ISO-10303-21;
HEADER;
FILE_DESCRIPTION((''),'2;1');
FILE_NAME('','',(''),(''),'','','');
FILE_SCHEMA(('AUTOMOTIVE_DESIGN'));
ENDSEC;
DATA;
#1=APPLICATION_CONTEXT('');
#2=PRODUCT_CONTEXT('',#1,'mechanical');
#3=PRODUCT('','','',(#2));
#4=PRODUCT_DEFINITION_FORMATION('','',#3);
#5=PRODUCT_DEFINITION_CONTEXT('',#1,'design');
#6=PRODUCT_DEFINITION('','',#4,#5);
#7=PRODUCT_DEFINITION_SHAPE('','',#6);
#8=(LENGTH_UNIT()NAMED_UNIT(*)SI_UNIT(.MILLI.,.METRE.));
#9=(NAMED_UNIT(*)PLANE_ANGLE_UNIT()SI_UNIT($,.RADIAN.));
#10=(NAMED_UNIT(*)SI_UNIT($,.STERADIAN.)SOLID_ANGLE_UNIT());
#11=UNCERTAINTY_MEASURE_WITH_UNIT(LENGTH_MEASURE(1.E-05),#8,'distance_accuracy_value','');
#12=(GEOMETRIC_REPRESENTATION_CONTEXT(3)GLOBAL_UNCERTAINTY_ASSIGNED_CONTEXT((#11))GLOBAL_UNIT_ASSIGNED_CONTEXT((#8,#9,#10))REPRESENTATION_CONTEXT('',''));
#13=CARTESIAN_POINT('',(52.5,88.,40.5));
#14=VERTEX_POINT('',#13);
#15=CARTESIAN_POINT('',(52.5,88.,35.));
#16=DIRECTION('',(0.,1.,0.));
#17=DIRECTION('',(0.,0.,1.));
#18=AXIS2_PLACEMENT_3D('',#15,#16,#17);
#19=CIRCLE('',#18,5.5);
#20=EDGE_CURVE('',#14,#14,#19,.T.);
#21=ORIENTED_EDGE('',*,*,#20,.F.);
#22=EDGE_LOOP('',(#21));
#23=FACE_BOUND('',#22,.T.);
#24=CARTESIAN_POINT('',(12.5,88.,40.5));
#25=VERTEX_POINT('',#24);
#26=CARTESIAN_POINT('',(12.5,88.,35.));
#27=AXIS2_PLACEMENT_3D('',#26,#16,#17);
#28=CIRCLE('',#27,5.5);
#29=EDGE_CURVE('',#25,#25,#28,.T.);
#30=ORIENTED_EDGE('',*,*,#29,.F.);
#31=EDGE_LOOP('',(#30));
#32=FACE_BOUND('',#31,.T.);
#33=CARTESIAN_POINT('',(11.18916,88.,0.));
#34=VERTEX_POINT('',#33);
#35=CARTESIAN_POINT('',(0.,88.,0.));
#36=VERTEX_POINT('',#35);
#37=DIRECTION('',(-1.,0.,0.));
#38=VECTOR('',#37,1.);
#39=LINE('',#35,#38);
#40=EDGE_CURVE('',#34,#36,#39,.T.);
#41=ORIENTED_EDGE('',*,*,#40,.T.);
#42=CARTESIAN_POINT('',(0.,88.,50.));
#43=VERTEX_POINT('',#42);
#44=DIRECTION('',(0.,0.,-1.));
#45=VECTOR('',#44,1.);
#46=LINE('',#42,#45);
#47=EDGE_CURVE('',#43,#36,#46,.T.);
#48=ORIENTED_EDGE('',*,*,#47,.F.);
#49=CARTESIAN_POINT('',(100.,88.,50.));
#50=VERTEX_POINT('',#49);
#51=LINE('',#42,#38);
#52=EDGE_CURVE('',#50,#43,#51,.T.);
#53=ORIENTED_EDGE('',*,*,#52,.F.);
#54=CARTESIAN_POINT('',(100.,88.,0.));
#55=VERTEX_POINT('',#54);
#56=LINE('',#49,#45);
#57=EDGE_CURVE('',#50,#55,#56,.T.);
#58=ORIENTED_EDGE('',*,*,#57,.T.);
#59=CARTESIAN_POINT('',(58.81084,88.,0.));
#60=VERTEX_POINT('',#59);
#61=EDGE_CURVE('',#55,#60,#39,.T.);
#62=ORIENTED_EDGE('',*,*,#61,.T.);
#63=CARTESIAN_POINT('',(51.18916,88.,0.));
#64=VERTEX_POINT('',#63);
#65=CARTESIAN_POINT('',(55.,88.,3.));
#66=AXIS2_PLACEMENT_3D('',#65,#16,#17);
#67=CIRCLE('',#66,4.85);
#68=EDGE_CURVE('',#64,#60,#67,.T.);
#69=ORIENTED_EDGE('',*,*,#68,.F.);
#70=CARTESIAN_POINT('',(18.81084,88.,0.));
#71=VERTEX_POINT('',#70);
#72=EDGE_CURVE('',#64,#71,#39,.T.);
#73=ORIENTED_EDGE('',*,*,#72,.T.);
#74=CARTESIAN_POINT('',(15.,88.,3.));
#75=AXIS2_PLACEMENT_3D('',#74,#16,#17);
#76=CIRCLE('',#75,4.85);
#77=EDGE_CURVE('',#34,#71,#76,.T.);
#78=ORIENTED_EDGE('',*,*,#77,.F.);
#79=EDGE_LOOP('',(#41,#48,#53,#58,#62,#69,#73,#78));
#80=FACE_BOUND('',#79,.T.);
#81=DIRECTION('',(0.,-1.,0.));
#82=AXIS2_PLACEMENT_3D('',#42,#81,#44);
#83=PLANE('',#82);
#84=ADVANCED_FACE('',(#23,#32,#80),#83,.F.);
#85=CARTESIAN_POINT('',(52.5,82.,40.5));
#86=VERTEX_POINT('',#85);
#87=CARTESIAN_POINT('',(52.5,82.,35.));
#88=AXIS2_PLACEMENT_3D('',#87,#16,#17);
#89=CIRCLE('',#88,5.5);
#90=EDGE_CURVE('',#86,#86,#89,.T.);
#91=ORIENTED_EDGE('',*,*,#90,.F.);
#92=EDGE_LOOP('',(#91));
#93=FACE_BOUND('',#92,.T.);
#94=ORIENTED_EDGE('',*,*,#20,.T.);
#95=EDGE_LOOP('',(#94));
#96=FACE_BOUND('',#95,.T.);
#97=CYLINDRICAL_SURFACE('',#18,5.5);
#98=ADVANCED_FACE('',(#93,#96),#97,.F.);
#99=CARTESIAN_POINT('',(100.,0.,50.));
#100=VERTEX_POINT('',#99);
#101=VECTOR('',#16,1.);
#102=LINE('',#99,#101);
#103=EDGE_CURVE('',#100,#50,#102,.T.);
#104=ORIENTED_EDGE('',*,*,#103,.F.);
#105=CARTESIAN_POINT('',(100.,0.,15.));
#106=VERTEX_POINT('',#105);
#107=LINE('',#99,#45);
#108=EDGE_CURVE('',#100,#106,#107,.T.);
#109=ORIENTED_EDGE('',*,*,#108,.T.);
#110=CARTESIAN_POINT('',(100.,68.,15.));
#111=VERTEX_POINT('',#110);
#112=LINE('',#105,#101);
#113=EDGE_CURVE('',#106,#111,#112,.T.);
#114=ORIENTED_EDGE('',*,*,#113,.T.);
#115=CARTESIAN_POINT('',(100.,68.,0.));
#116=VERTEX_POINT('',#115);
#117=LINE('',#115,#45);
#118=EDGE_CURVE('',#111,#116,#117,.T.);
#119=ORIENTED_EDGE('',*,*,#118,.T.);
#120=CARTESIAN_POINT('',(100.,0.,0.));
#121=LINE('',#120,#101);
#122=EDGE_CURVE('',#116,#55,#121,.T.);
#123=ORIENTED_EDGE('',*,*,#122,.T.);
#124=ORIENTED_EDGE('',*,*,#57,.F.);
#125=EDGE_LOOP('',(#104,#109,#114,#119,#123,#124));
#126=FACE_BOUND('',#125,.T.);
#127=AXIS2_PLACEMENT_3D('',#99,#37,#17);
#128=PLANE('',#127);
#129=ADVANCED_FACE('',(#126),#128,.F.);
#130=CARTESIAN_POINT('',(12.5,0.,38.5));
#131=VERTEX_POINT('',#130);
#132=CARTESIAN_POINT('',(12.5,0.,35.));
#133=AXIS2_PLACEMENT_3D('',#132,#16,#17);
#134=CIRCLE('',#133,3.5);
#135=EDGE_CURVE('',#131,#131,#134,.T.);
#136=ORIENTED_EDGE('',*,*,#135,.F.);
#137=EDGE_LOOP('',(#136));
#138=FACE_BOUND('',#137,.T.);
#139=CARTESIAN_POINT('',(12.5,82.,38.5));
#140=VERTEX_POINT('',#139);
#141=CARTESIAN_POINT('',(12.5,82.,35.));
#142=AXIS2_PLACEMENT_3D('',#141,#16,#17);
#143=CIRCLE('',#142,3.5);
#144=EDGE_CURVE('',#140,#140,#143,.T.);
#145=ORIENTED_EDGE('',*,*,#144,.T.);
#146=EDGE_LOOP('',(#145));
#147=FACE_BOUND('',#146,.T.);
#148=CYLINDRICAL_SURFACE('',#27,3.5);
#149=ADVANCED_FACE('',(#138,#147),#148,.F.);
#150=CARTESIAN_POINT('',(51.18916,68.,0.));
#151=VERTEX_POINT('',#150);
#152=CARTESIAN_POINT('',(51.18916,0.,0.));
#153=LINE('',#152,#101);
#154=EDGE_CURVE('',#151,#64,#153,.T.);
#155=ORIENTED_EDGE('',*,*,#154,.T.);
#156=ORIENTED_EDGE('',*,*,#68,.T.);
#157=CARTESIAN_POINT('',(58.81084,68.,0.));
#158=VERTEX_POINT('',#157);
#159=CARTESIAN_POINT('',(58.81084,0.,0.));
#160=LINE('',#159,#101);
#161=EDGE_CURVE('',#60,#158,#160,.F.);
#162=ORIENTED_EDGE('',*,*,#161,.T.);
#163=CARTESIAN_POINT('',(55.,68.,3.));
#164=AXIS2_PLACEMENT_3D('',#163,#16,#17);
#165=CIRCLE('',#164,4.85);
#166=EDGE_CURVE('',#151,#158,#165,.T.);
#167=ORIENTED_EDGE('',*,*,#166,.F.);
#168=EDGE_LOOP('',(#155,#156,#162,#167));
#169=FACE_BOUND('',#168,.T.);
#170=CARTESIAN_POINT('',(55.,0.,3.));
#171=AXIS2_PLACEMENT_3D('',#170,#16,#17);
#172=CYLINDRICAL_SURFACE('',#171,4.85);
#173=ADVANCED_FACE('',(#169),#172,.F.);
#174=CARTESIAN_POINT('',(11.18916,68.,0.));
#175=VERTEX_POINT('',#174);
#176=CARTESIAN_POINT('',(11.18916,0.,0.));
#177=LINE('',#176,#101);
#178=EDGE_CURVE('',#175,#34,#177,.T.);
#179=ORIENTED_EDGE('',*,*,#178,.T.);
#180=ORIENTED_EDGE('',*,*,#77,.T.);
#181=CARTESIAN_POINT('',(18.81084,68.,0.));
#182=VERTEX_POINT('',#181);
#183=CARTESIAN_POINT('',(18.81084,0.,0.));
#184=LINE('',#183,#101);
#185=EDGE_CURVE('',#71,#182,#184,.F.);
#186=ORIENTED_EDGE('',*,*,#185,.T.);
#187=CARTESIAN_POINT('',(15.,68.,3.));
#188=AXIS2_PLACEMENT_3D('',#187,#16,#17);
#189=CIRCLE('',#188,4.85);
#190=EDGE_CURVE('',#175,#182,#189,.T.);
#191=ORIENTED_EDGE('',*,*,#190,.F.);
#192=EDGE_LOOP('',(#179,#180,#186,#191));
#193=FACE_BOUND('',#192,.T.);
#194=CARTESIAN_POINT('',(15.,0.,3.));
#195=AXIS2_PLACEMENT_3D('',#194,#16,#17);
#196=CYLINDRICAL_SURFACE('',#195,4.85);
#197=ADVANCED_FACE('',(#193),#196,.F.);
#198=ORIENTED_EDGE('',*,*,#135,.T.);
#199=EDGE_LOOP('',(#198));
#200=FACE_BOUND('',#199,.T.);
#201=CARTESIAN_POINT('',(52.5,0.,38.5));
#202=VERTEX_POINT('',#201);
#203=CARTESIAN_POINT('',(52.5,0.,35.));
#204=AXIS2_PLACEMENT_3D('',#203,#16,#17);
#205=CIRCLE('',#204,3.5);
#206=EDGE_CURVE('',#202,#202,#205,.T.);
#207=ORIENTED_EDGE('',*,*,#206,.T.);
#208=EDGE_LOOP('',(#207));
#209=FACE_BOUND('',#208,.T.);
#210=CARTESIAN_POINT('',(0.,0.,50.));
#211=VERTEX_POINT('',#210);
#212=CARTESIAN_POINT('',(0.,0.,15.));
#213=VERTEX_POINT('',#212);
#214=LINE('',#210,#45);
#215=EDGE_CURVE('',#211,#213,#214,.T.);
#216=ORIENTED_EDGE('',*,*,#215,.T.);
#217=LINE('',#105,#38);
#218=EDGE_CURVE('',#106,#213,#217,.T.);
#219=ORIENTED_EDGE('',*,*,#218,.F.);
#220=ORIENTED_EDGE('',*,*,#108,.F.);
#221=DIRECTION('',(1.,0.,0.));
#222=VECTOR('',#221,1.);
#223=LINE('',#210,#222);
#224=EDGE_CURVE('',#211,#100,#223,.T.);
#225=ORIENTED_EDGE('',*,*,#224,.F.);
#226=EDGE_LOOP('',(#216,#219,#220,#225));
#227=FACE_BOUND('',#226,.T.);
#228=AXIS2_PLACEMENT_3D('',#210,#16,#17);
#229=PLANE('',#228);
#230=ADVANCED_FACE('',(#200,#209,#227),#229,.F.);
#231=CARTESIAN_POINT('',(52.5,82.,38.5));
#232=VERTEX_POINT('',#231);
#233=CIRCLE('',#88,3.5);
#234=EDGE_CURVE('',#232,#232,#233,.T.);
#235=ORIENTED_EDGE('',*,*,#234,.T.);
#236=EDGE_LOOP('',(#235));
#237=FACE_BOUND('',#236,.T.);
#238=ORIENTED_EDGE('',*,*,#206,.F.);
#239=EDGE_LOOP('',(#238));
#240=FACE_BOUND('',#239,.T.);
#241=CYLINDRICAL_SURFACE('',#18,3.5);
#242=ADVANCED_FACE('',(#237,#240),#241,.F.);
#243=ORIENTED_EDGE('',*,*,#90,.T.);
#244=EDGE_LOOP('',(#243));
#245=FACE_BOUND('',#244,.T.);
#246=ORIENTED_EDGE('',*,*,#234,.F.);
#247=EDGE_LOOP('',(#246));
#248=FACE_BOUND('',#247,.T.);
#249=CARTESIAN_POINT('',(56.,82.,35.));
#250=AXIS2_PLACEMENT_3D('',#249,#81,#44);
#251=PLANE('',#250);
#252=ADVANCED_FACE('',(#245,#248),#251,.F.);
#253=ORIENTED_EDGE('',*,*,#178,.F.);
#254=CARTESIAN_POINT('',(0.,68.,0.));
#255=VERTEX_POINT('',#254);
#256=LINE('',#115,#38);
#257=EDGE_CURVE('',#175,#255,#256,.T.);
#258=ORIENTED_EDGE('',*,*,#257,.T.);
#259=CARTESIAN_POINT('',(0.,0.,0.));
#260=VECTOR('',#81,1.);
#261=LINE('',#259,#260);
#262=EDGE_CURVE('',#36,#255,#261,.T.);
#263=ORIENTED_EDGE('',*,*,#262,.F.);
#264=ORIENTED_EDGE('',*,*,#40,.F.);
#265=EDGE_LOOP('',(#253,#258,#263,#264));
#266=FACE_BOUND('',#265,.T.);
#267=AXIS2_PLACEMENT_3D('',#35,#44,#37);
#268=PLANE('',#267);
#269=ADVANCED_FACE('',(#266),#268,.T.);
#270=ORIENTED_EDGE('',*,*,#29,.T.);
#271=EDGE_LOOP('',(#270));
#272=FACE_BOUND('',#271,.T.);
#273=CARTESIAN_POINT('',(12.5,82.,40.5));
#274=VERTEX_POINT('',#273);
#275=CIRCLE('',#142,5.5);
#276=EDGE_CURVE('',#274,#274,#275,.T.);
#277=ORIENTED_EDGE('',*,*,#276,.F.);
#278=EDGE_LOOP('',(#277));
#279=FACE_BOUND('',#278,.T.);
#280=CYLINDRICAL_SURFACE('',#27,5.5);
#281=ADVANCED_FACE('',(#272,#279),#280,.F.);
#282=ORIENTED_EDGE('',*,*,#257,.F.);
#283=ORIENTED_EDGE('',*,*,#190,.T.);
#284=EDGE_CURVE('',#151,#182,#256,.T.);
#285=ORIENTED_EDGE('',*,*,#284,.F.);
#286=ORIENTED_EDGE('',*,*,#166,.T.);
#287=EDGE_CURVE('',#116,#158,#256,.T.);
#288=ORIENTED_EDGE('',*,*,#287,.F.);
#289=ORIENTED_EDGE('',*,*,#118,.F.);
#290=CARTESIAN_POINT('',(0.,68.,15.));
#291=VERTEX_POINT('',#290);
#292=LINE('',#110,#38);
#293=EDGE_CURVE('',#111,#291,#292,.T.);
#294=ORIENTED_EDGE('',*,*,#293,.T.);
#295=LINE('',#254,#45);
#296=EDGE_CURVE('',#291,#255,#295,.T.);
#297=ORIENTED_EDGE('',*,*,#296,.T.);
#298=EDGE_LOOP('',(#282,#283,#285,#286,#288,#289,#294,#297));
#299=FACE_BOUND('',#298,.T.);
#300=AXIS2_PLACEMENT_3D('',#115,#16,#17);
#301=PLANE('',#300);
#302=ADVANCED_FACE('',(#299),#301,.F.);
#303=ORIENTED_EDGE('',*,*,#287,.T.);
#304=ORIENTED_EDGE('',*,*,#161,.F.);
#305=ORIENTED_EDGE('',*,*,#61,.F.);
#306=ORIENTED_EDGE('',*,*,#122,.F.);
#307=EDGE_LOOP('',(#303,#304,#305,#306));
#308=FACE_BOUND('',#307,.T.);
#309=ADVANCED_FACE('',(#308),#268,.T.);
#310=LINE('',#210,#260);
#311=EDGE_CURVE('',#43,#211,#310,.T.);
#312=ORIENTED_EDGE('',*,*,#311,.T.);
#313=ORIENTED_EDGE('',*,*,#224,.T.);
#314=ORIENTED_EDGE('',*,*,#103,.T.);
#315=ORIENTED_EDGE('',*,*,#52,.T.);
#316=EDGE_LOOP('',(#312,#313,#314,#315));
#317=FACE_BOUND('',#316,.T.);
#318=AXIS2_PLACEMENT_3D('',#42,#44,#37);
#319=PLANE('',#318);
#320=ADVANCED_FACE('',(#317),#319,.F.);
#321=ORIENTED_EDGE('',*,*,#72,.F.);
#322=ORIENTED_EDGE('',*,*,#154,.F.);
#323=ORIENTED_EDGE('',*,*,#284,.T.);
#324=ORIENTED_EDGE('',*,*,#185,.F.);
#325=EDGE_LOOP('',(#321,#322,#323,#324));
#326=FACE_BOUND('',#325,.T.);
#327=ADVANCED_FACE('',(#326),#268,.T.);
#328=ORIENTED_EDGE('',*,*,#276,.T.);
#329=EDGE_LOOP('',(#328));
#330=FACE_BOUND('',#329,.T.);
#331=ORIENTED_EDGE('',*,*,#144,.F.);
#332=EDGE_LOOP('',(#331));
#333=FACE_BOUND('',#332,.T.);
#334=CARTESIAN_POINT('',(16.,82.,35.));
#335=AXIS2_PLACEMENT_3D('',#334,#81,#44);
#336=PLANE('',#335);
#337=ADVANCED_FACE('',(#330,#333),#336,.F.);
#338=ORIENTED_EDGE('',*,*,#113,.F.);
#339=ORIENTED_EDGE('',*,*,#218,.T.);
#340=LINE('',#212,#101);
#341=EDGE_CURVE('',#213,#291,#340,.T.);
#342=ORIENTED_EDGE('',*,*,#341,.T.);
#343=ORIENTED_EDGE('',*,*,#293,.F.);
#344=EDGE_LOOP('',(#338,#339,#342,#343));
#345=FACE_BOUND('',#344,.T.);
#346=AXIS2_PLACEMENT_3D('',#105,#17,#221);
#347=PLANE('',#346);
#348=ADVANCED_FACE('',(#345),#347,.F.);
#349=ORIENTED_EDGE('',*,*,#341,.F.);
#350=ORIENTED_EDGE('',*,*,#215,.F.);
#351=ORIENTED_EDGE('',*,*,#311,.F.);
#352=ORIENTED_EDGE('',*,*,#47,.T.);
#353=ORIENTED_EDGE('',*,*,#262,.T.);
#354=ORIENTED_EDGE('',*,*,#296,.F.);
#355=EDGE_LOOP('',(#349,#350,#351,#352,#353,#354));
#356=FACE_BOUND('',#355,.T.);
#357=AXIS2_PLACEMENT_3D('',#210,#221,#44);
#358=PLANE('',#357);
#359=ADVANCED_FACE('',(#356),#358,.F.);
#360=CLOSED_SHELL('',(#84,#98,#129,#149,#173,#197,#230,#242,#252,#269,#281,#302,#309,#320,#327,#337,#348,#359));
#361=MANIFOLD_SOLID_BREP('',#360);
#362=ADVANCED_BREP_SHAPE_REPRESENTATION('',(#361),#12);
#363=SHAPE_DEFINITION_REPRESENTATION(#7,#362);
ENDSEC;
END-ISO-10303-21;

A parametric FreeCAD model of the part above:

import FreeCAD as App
import Part
import Sketcher
from FreeCAD import Vector
Q = App.Units.Quantity


def add_polygon(sketch, points):
    """Adds a closed chain of lines whose ends are joined by coincident constraints."""
    first, n = sketch.GeometryCount, len(points)
    for a, b in zip(points, points[1:] + points[:1]):
        sketch.addGeometry(Part.LineSegment(App.Vector(*a, 0), App.Vector(*b, 0)), False)
    for i in range(n):
        sketch.addConstraint(Sketcher.Constraint("Coincident", first + i, 2, first + (i + 1) % n, 1))

doc = App.newDocument("Part")
body = doc.addObject("PartDesign::Body", "Body")

# Sketch on XY plane
sketch1 = doc.addObject("Sketcher::SketchObject", "Sketch")
body.addObject(sketch1)
sketch1.AttachmentSupport = (doc.XY_Plane, [""])
sketch1.MapMode = "FlatFace"
add_polygon(sketch1, [(0, 88), (0, 0), (100, 0), (100, 88)])  # lines 0-3
sketch1.addConstraint([
    Sketcher.Constraint("Vertical", 0),
    Sketcher.Constraint("Horizontal", 1),
    Sketcher.Constraint("Vertical", 2),
    Sketcher.Constraint("Horizontal", 3),
    Sketcher.Constraint("Coincident", 0, 2, -1, 1),
    Sketcher.Constraint("DistanceX", 1, 1, 1, 2, Q("100 mm")),
    Sketcher.Constraint("DistanceY", 0, 2, 0, 1, Q("88 mm")),
])
pad1 = doc.addObject("PartDesign::Pad", "Pad")
body.addObject(pad1)
pad1.Profile = sketch1
pad1.Length = 50

# Sketch on YZ plane
sketch2 = doc.addObject("Sketcher::SketchObject", "Sketch001")
body.addObject(sketch2)
sketch2.AttachmentSupport = (doc.YZ_Plane, [""])
sketch2.MapMode = "FlatFace"
add_polygon(sketch2, [(68, 0), (0, 0), (0, 15), (68, 15)])  # lines 0-3
sketch2.addConstraint([
    Sketcher.Constraint("Horizontal", 0),
    Sketcher.Constraint("Vertical", 1),
    Sketcher.Constraint("Horizontal", 2),
    Sketcher.Constraint("Vertical", 3),
    Sketcher.Constraint("Coincident", 0, 2, -1, 1),
    Sketcher.Constraint("DistanceX", 0, 2, 0, 1, Q("68 mm")),
    Sketcher.Constraint("DistanceY", 1, 1, 1, 2, Q("15 mm")),
])
pocket1 = doc.addObject("PartDesign::Pocket", "Pocket")
body.addObject(pocket1)
pocket1.Profile = sketch2
pocket1.Type = "ThroughAll"
pocket1.Reversed = True

# Sketch on XZ plane
sketch3 = doc.addObject("Sketcher::SketchObject", "Sketch002")
body.addObject(sketch3)
sketch3.AttachmentSupport = (doc.XZ_Plane, [""])
sketch3.MapMode = "FlatFace"
sketch3.AttachmentOffset = App.Placement(Vector(0, 0, -88), App.Rotation())
sketch3.addGeometry([
    Part.Circle(Vector(15, 3, 0), Vector(0, 0, 1), 4.8),
    Part.Circle(Vector(55, 3, 0), Vector(0, 0, 1), 4.8),
], False)
sketch3.addConstraint([
    Sketcher.Constraint("Equal", 0, 1),
    Sketcher.Constraint("Horizontal", 0, 3, 1, 3),
    Sketcher.Constraint("Diameter", 0, Q("9.7 mm")),
    Sketcher.Constraint("DistanceX", -1, 1, 0, 3, Q("15 mm")),
    Sketcher.Constraint("DistanceY", -1, 1, 0, 3, Q("3 mm")),
    Sketcher.Constraint("DistanceX", -1, 1, 1, 3, Q("55 mm")),
])
pocket2 = doc.addObject("PartDesign::Pocket", "Pocket001")
body.addObject(pocket2)
pocket2.Profile = sketch3
pocket2.Type = "ThroughAll"
pocket2.Reversed = True

# Sketch on XZ plane
sketch4 = doc.addObject("Sketcher::SketchObject", "Sketch003")
body.addObject(sketch4)
sketch4.AttachmentSupport = (doc.XZ_Plane, [""])
sketch4.MapMode = "FlatFace"
sketch4.AttachmentOffset = App.Placement(Vector(0, 0, -88), App.Rotation())
sketch4.addGeometry([
    Part.Circle(Vector(12.5, 35, 0), Vector(0, 0, 1), 3.5),
    Part.Circle(Vector(52.5, 35, 0), Vector(0, 0, 1), 3.5),
], False)
sketch4.addConstraint([
    Sketcher.Constraint("Equal", 0, 1),
    Sketcher.Constraint("Horizontal", 0, 3, 1, 3),
    Sketcher.Constraint("Diameter", 0, Q("7 mm")),
    Sketcher.Constraint("DistanceY", -1, 1, 0, 3, Q("35 mm")),
    Sketcher.Constraint("DistanceX", 0, 3, 1, 3, Q("40 mm")),
    Sketcher.Constraint("DistanceX", -1, 1, 0, 3, Q("12.5 mm")),
])
doc.recompute()
hole = doc.addObject("PartDesign::Hole", "Hole")
body.addObject(hole)
hole.Profile = sketch4
hole.ThreadType = "None"
hole.Diameter = 7
hole.DepthType = "ThroughAll"
hole.HoleCutType = "Counterbore"
hole.HoleCutDiameter = 11
hole.HoleCutDepth = 6
hole.Reversed = True

doc.recompute()
